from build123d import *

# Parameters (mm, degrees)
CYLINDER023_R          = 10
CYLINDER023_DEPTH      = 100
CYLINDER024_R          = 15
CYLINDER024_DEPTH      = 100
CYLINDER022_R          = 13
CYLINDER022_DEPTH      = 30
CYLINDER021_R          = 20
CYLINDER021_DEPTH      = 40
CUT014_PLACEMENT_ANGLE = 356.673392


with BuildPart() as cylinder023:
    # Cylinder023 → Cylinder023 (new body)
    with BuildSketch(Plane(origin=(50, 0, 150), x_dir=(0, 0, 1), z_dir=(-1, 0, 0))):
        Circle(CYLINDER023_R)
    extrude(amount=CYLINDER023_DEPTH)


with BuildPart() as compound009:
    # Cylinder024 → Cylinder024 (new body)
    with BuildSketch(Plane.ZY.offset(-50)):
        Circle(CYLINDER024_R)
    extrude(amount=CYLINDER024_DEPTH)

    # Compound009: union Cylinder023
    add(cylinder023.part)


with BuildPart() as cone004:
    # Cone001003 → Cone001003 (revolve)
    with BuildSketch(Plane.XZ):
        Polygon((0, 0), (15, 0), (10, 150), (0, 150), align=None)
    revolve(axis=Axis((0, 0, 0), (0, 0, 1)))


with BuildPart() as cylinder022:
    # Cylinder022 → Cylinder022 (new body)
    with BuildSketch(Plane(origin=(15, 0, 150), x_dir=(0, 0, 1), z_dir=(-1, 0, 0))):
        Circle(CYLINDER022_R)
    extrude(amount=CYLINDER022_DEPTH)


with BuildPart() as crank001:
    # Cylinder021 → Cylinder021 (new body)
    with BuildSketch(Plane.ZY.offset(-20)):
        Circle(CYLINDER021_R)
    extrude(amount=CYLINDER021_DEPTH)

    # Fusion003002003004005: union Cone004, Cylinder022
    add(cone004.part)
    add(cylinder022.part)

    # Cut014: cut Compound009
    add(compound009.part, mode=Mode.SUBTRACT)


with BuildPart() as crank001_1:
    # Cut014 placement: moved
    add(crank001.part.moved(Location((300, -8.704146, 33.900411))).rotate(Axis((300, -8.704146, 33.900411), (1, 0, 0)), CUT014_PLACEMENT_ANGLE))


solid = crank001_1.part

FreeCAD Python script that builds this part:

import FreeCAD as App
import Part
import Sketcher


def add_polygon(sketch, points):
    """Adds a closed chain of lines whose ends are joined by coincident constraints."""
    first, n = sketch.GeometryCount, len(points)
    for a, b in zip(points, points[1:] + points[:1]):
        sketch.addGeometry(Part.LineSegment(App.Vector(*a, 0), App.Vector(*b, 0)), False)
    for i in range(n):
        sketch.addConstraint(Sketcher.Constraint("Coincident", first + i, 2, first + (i + 1) % n, 1))

doc = App.newDocument("Part")
params = doc.addObject("Spreadsheet::Sheet", "Params")
for row, (alias, value) in enumerate([
    ("sketch1_diameter", "20 mm"),
    ("pad1_length", "100 mm"),
    ("sketch2_diameter", "30 mm"),
    ("pad2_length", "100 mm"),
    ("sketch3_width", "15 mm"),
    ("sketch3_width2", "10 mm"),
    ("sketch3_height", "150 mm"),
    ("revolution_angle", "360 deg"),
    ("sketch4_diameter", "26 mm"),
    ("pad3_length", "30 mm"),
    ("sketch5_diameter", "40 mm"),
    ("pad4_length", "40 mm"),
], start=1):
    params.set(f"A{row}", alias)
    params.set(f"B{row}", "=" + value)
    params.setAlias(f"B{row}", alias)

body = doc.addObject("PartDesign::Body", "Body")

# Sketch on YZ plane
sketch1 = body.newObject("Sketcher::SketchObject", "Sketch")
sketch1.AttachmentSupport = (doc.getObject("YZ_Plane"), [""])
sketch1.MapMode = "FlatFace"
sketch1.AttachmentOffset = App.Placement(App.Vector(0, 0, 50), App.Rotation())
sketch1.addGeometry(Part.Circle(App.Vector(0, 150, 0), App.Vector(0, 0, 1), 10), False)
sketch1.addConstraint([
    Sketcher.Constraint("PointOnObject", 0, 3, -2),
    Sketcher.Constraint("Diameter", 0, 20.0),
    Sketcher.Constraint("DistanceY", -1, 1, 0, 3, 150.0),
])
sketch1.setExpression("Constraints[1]", "Params.sketch1_diameter")
pad1 = body.newObject("PartDesign::Pad", "Pad")
pad1.Profile = sketch1
pad1.setExpression("Length", "Params.pad1_length")
pad1.Reversed = True
body2 = doc.addObject("PartDesign::Body", "Body001")
body2.AllowCompound = True

# Sketch on YZ plane
sketch2 = body2.newObject("Sketcher::SketchObject", "Sketch001")
sketch2.AttachmentSupport = (doc.getObject("YZ_Plane001"), [""])
sketch2.MapMode = "FlatFace"
sketch2.AttachmentOffset = App.Placement(App.Vector(0, 0, 50), App.Rotation())
sketch2.addGeometry(Part.Circle(App.Vector(0, 0, 0), App.Vector(0, 0, 1), 15), False)
sketch2.addConstraint([
    Sketcher.Constraint("Coincident", 0, 3, -1, 1),
    Sketcher.Constraint("Diameter", 0, 30.0),
])
sketch2.setExpression("Constraints[1]", "Params.sketch2_diameter")
pad2 = body2.newObject("PartDesign::Pad", "Pad001")
pad2.Profile = sketch2
pad2.setExpression("Length", "Params.pad2_length")
pad2.Reversed = True
doc.recompute()

boolean = body2.newObject("PartDesign::Boolean", "Boolean")
boolean.Type = "Fuse"
boolean.addObjects([body])
body3 = doc.addObject("PartDesign::Body", "Body002")

# Sketch on XZ plane
sketch3 = body3.newObject("Sketcher::SketchObject", "Sketch002")
sketch3.AttachmentSupport = (doc.getObject("XZ_Plane002"), [""])
sketch3.MapMode = "FlatFace"
add_polygon(sketch3, [(0, 0), (15, 0), (10, 150), (0, 150)])  # lines 0-3
sketch3.addConstraint([
    Sketcher.Constraint("Horizontal", 0),
    Sketcher.Constraint("Horizontal", 2),
    Sketcher.Constraint("Vertical", 3),
    Sketcher.Constraint("Coincident", 3, 2, -1, 1),
    Sketcher.Constraint("DistanceX", 0, 1, 0, 2, 15.0),
    Sketcher.Constraint("DistanceX", 2, 2, 2, 1, 10.0),
    Sketcher.Constraint("DistanceY", 3, 2, 3, 1, 150.0),
])
sketch3.setExpression("Constraints[8]", "Params.sketch3_width")
sketch3.setExpression("Constraints[9]", "Params.sketch3_width2")
sketch3.setExpression("Constraints[10]", "Params.sketch3_height")
revolution = body3.newObject("PartDesign::Revolution", "Revolution")
revolution.Profile = sketch3
revolution.ReferenceAxis = (sketch3, ["V_Axis"])
revolution.setExpression("Angle", "Params.revolution_angle")
body4 = doc.addObject("PartDesign::Body", "Body003")

# Sketch on YZ plane
sketch4 = body4.newObject("Sketcher::SketchObject", "Sketch003")
sketch4.AttachmentSupport = (doc.getObject("YZ_Plane003"), [""])
sketch4.MapMode = "FlatFace"
sketch4.AttachmentOffset = App.Placement(App.Vector(0, 0, 15), App.Rotation())
sketch4.addGeometry(Part.Circle(App.Vector(0, 150, 0), App.Vector(0, 0, 1), 13), False)
sketch4.addConstraint([
    Sketcher.Constraint("PointOnObject", 0, 3, -2),
    Sketcher.Constraint("Diameter", 0, 26.0),
    Sketcher.Constraint("DistanceY", -1, 1, 0, 3, 150.0),
])
sketch4.setExpression("Constraints[1]", "Params.sketch4_diameter")
pad3 = body4.newObject("PartDesign::Pad", "Pad002")
pad3.Profile = sketch4
pad3.setExpression("Length", "Params.pad3_length")
pad3.Reversed = True
body5 = doc.addObject("PartDesign::Body", "Body004")

# Sketch on YZ plane
sketch5 = body5.newObject("Sketcher::SketchObject", "Sketch004")
sketch5.AttachmentSupport = (doc.getObject("YZ_Plane004"), [""])
sketch5.MapMode = "FlatFace"
sketch5.AttachmentOffset = App.Placement(App.Vector(0, 0, 20), App.Rotation())
sketch5.addGeometry(Part.Circle(App.Vector(0, 0, 0), App.Vector(0, 0, 1), 20), False)
sketch5.addConstraint([
    Sketcher.Constraint("Coincident", 0, 3, -1, 1),
    Sketcher.Constraint("Diameter", 0, 40.0),
])
sketch5.setExpression("Constraints[1]", "Params.sketch5_diameter")
pad4 = body5.newObject("PartDesign::Pad", "Pad003")
pad4.Profile = sketch5
pad4.setExpression("Length", "Params.pad4_length")
pad4.Reversed = True
doc.recompute()

boolean2 = body5.newObject("PartDesign::Boolean", "Boolean001")
boolean2.Type = "Fuse"
boolean2.addObjects([body3])
doc.recompute()

boolean3 = body5.newObject("PartDesign::Boolean", "Boolean002")
boolean3.Type = "Fuse"
boolean3.addObjects([body4])
doc.recompute()

boolean4 = body5.newObject("PartDesign::Boolean", "Boolean003")
boolean4.Type = "Cut"
boolean4.addObjects([body2])
body6 = doc.addObject("PartDesign::Body", "Body005")
doc.recompute()

body5.Placement = App.Placement(App.Vector(300, -8.704146, 33.900411), App.Rotation(App.Vector(1, 0, 0), 356.673392))
boolean5 = body6.newObject("PartDesign::Boolean", "Boolean004")
boolean5.Type = "Fuse"
boolean5.addObjects([body5])

doc.recompute()
